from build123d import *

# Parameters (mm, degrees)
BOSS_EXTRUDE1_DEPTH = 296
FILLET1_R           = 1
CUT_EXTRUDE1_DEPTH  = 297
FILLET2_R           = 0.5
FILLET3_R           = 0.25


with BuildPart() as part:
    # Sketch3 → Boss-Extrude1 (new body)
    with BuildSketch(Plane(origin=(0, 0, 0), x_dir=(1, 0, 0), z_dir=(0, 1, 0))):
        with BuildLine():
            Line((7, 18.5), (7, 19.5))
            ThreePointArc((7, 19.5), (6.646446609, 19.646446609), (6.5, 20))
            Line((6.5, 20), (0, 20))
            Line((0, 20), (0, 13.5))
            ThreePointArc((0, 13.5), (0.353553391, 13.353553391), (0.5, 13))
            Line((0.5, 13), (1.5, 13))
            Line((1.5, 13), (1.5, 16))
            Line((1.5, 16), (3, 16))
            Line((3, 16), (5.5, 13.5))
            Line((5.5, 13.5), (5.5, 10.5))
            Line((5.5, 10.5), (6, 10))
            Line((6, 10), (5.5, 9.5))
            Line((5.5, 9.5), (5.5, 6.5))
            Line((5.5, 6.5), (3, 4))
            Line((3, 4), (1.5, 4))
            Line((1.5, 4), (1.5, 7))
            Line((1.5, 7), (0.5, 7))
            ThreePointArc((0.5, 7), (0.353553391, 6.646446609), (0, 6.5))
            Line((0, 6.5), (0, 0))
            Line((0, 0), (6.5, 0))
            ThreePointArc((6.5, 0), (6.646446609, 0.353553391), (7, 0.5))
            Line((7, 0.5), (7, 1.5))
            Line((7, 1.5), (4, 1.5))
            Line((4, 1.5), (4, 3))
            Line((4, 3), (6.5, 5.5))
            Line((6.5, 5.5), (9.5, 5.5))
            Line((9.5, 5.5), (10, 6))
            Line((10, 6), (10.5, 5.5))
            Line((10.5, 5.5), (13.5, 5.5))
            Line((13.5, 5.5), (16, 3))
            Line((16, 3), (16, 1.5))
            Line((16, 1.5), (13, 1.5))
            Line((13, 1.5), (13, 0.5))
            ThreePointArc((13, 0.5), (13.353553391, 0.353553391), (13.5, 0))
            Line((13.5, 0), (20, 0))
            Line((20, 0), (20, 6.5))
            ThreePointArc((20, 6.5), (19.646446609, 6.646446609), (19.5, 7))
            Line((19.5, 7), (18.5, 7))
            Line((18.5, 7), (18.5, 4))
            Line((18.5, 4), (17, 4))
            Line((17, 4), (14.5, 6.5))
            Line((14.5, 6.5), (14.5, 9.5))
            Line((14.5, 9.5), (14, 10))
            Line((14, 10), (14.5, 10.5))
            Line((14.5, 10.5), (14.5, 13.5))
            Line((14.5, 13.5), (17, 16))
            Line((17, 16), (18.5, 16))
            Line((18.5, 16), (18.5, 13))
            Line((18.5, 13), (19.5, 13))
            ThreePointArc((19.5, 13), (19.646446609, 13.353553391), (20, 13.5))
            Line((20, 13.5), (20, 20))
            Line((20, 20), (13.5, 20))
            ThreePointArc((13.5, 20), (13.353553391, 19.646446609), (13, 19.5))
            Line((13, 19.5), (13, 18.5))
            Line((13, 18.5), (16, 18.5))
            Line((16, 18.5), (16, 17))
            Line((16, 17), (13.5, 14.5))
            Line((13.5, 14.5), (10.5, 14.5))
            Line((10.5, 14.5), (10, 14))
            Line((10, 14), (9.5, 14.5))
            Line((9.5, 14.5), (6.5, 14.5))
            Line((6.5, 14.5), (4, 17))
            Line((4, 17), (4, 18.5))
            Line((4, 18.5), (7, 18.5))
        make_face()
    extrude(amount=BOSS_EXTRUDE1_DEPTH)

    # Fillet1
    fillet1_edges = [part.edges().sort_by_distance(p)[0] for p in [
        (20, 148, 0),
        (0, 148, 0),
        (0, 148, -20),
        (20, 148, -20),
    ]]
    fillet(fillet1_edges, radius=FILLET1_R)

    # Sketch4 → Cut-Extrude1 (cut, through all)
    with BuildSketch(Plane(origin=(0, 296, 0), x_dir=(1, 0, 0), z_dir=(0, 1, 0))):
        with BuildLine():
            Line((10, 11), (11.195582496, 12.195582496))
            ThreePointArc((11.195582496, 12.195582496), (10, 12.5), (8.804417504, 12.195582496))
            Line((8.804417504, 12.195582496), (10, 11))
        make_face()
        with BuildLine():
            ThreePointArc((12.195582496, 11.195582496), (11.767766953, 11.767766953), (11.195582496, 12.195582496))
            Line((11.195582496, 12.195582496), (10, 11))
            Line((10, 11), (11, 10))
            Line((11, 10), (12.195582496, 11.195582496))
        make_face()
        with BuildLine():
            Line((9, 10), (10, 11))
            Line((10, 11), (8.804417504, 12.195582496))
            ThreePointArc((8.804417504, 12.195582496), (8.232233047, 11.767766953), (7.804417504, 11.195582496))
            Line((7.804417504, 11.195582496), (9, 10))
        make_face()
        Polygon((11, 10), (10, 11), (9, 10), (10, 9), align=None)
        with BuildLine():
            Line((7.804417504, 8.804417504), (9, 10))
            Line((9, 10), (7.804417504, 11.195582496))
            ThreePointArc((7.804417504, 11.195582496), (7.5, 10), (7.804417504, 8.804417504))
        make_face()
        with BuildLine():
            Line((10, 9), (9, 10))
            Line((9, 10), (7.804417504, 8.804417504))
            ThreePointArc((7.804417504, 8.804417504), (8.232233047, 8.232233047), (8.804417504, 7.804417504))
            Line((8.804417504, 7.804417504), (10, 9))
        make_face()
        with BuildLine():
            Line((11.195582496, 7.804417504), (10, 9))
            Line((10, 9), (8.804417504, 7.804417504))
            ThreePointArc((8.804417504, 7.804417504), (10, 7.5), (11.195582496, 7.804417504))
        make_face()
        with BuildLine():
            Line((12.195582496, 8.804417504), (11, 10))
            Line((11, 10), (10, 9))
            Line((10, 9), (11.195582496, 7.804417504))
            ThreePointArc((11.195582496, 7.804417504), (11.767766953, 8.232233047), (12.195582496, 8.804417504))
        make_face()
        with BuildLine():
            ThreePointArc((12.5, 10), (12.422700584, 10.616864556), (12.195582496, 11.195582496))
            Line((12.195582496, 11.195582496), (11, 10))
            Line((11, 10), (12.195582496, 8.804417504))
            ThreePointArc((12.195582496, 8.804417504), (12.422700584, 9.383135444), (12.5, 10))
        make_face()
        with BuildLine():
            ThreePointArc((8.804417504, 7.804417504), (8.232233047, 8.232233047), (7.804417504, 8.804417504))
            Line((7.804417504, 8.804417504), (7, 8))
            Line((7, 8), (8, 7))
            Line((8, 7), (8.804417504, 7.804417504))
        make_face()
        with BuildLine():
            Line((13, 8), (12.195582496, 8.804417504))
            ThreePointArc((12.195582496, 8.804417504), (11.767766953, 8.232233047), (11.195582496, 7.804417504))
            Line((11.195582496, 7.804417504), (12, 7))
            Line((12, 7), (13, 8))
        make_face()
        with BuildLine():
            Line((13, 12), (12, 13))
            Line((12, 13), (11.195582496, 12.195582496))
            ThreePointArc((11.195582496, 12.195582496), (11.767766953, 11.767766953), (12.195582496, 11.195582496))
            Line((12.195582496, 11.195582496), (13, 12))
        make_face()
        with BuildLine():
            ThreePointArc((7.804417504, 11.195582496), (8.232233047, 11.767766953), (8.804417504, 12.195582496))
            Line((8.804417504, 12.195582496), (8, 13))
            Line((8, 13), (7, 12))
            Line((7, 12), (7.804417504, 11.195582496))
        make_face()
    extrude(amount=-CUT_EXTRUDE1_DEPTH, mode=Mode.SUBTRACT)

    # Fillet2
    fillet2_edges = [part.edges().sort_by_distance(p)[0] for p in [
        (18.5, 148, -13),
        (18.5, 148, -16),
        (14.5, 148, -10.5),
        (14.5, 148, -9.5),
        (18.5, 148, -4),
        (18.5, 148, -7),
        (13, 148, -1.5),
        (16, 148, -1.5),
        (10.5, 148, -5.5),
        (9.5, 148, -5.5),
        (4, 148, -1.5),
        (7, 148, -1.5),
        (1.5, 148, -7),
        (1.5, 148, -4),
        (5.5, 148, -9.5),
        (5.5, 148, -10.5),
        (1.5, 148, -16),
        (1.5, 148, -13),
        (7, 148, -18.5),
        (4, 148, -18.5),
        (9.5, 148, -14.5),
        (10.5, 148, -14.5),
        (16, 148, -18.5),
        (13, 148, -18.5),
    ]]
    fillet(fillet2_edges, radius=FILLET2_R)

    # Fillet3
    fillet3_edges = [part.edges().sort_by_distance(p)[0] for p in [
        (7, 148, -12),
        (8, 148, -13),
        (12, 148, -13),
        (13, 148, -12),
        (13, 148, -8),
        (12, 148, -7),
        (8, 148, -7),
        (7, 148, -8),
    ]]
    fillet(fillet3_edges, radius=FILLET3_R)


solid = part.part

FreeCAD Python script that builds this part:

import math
import FreeCAD as App
import Part
import Sketcher

V = App.Vector
Q = App.Units.Quantity


def edges_at(feature, points):
    """Names of the edges that pass closest to the given points."""
    edges = feature.Shape.Edges
    near = lambda p: min(range(len(edges)), key=lambda i: edges[i].distToShape(Part.Vertex(*p))[0])
    return sorted({f"Edge{near(p) + 1}" for p in points})

doc = App.newDocument("Part")
body = doc.addObject("PartDesign::Body", "Body")

# Sketch on XZ plane
sketch1 = body.newObject("Sketcher::SketchObject", "Sketch")
sketch1.AttachmentSupport = (doc.getObject("XZ_Plane"), [""])
sketch1.MapMode = "FlatFace"
sketch1.addGeometry([
    Part.LineSegment(V(7, -18.5, 0), V(7, -19.5, 0)),  # 0
    Part.ArcOfCircle(Part.Circle(V(7, -20, 0), V(0, 0, 1), 0.5), math.radians(90), math.radians(180)),  # 1
    Part.LineSegment(V(6.5, -20, 0), V(0, -20, 0)),  # 2
    Part.LineSegment(V(0, -20, 0), V(0, -13.5, 0)),  # 3
    Part.ArcOfCircle(Part.Circle(V(0, -13, 0), V(0, 0, 1), 0.5), math.radians(-90), math.radians(0)),  # 4
    Part.LineSegment(V(0.5, -13, 0), V(1.5, -13, 0)),  # 5
    Part.LineSegment(V(1.5, -13, 0), V(1.5, -16, 0)),  # 6
    Part.LineSegment(V(1.5, -16, 0), V(3, -16, 0)),  # 7
    Part.LineSegment(V(3, -16, 0), V(5.5, -13.5, 0)),  # 8
    Part.LineSegment(V(5.5, -13.5, 0), V(5.5, -10.5, 0)),  # 9
    Part.LineSegment(V(5.5, -10.5, 0), V(6, -10, 0)),  # 10
    Part.LineSegment(V(6, -10, 0), V(5.5, -9.5, 0)),  # 11
    Part.LineSegment(V(5.5, -9.5, 0), V(5.5, -6.5, 0)),  # 12
    Part.LineSegment(V(5.5, -6.5, 0), V(3, -4, 0)),  # 13
    Part.LineSegment(V(3, -4, 0), V(1.5, -4, 0)),  # 14
    Part.LineSegment(V(1.5, -4, 0), V(1.5, -7, 0)),  # 15
    Part.LineSegment(V(1.5, -7, 0), V(0.5, -7, 0)),  # 16
    Part.ArcOfCircle(Part.Circle(V(0, -7, 0), V(0, 0, 1), 0.5), math.radians(0), math.radians(90)),  # 17
    Part.LineSegment(V(0, -6.5, 0), V(0, 0, 0)),  # 18
    Part.LineSegment(V(0, 0, 0), V(6.5, 0, 0)),  # 19
    Part.ArcOfCircle(Part.Circle(V(7, 0, 0), V(0, 0, 1), 0.5), math.radians(180), math.radians(270)),  # 20
    Part.LineSegment(V(7, -0.5, 0), V(7, -1.5, 0)),  # 21
    Part.LineSegment(V(7, -1.5, 0), V(4, -1.5, 0)),  # 22
    Part.LineSegment(V(4, -1.5, 0), V(4, -3, 0)),  # 23
    Part.LineSegment(V(4, -3, 0), V(6.5, -5.5, 0)),  # 24
    Part.LineSegment(V(6.5, -5.5, 0), V(9.5, -5.5, 0)),  # 25
    Part.LineSegment(V(9.5, -5.5, 0), V(10, -6, 0)),  # 26
    Part.LineSegment(V(10, -6, 0), V(10.5, -5.5, 0)),  # 27
    Part.LineSegment(V(10.5, -5.5, 0), V(13.5, -5.5, 0)),  # 28
    Part.LineSegment(V(13.5, -5.5, 0), V(16, -3, 0)),  # 29
    Part.LineSegment(V(16, -3, 0), V(16, -1.5, 0)),  # 30
    Part.LineSegment(V(16, -1.5, 0), V(13, -1.5, 0)),  # 31
    Part.LineSegment(V(13, -1.5, 0), V(13, -0.5, 0)),  # 32
    Part.ArcOfCircle(Part.Circle(V(13, 0, 0), V(0, 0, 1), 0.5), math.radians(-90), math.radians(0)),  # 33
    Part.LineSegment(V(13.5, 0, 0), V(20, 0, 0)),  # 34
    Part.LineSegment(V(20, 0, 0), V(20, -6.5, 0)),  # 35
    Part.ArcOfCircle(Part.Circle(V(20, -7, 0), V(0, 0, 1), 0.5), math.radians(90), math.radians(180)),  # 36
    Part.LineSegment(V(19.5, -7, 0), V(18.5, -7, 0)),  # 37
    Part.LineSegment(V(18.5, -7, 0), V(18.5, -4, 0)),  # 38
    Part.LineSegment(V(18.5, -4, 0), V(17, -4, 0)),  # 39
    Part.LineSegment(V(17, -4, 0), V(14.5, -6.5, 0)),  # 40
    Part.LineSegment(V(14.5, -6.5, 0), V(14.5, -9.5, 0)),  # 41
    Part.LineSegment(V(14.5, -9.5, 0), V(14, -10, 0)),  # 42
    Part.LineSegment(V(14, -10, 0), V(14.5, -10.5, 0)),  # 43
    Part.LineSegment(V(14.5, -10.5, 0), V(14.5, -13.5, 0)),  # 44
    Part.LineSegment(V(14.5, -13.5, 0), V(17, -16, 0)),  # 45
    Part.LineSegment(V(17, -16, 0), V(18.5, -16, 0)),  # 46
    Part.LineSegment(V(18.5, -16, 0), V(18.5, -13, 0)),  # 47
    Part.LineSegment(V(18.5, -13, 0), V(19.5, -13, 0)),  # 48
    Part.ArcOfCircle(Part.Circle(V(20, -13, 0), V(0, 0, 1), 0.5), math.radians(180), math.radians(270)),  # 49
    Part.LineSegment(V(20, -13.5, 0), V(20, -20, 0)),  # 50
    Part.LineSegment(V(20, -20, 0), V(13.5, -20, 0)),  # 51
    Part.ArcOfCircle(Part.Circle(V(13, -20, 0), V(0, 0, 1), 0.5), math.radians(0), math.radians(90)),  # 52
    Part.LineSegment(V(13, -19.5, 0), V(13, -18.5, 0)),  # 53
    Part.LineSegment(V(13, -18.5, 0), V(16, -18.5, 0)),  # 54
    Part.LineSegment(V(16, -18.5, 0), V(16, -17, 0)),  # 55
    Part.LineSegment(V(16, -17, 0), V(13.5, -14.5, 0)),  # 56
    Part.LineSegment(V(13.5, -14.5, 0), V(10.5, -14.5, 0)),  # 57
    Part.LineSegment(V(10.5, -14.5, 0), V(10, -14, 0)),  # 58
    Part.LineSegment(V(10, -14, 0), V(9.5, -14.5, 0)),  # 59
    Part.LineSegment(V(9.5, -14.5, 0), V(6.5, -14.5, 0)),  # 60
    Part.LineSegment(V(6.5, -14.5, 0), V(4, -17, 0)),  # 61
    Part.LineSegment(V(4, -17, 0), V(4, -18.5, 0)),  # 62
    Part.LineSegment(V(4, -18.5, 0), V(7, -18.5, 0)),  # 63
], False)
sketch1.addConstraint([
    Sketcher.Constraint("Coincident", 0, 2, 1, 1),
    Sketcher.Constraint("Coincident", 1, 2, 2, 1),
    Sketcher.Constraint("Coincident", 2, 2, 3, 1),
    Sketcher.Constraint("Coincident", 3, 2, 4, 1),
    Sketcher.Constraint("Coincident", 4, 2, 5, 1),
    Sketcher.Constraint("Coincident", 5, 2, 6, 1),
    Sketcher.Constraint("Coincident", 6, 2, 7, 1),
    Sketcher.Constraint("Coincident", 7, 2, 8, 1),
    Sketcher.Constraint("Coincident", 8, 2, 9, 1),
    Sketcher.Constraint("Coincident", 9, 2, 10, 1),
    Sketcher.Constraint("Coincident", 10, 2, 11, 1),
    Sketcher.Constraint("Coincident", 11, 2, 12, 1),
    Sketcher.Constraint("Coincident", 12, 2, 13, 1),
    Sketcher.Constraint("Coincident", 13, 2, 14, 1),
    Sketcher.Constraint("Coincident", 14, 2, 15, 1),
    Sketcher.Constraint("Coincident", 15, 2, 16, 1),
    Sketcher.Constraint("Coincident", 16, 2, 17, 1),
    Sketcher.Constraint("Coincident", 17, 2, 18, 1),
    Sketcher.Constraint("Coincident", 18, 2, 19, 1),
    Sketcher.Constraint("Coincident", 19, 2, 20, 1),
    Sketcher.Constraint("Coincident", 20, 2, 21, 1),
    Sketcher.Constraint("Coincident", 21, 2, 22, 1),
    Sketcher.Constraint("Coincident", 22, 2, 23, 1),
    Sketcher.Constraint("Coincident", 23, 2, 24, 1),
    Sketcher.Constraint("Coincident", 24, 2, 25, 1),
    Sketcher.Constraint("Coincident", 25, 2, 26, 1),
    Sketcher.Constraint("Coincident", 26, 2, 27, 1),
    Sketcher.Constraint("Coincident", 27, 2, 28, 1),
    Sketcher.Constraint("Coincident", 28, 2, 29, 1),
    Sketcher.Constraint("Coincident", 29, 2, 30, 1),
    Sketcher.Constraint("Coincident", 30, 2, 31, 1),
    Sketcher.Constraint("Coincident", 31, 2, 32, 1),
    Sketcher.Constraint("Coincident", 32, 2, 33, 1),
    Sketcher.Constraint("Coincident", 33, 2, 34, 1),
    Sketcher.Constraint("Coincident", 34, 2, 35, 1),
    Sketcher.Constraint("Coincident", 35, 2, 36, 1),
    Sketcher.Constraint("Coincident", 36, 2, 37, 1),
    Sketcher.Constraint("Coincident", 37, 2, 38, 1),
    Sketcher.Constraint("Coincident", 38, 2, 39, 1),
    Sketcher.Constraint("Coincident", 39, 2, 40, 1),
    Sketcher.Constraint("Coincident", 40, 2, 41, 1),
    Sketcher.Constraint("Coincident", 41, 2, 42, 1),
    Sketcher.Constraint("Coincident", 42, 2, 43, 1),
    Sketcher.Constraint("Coincident", 43, 2, 44, 1),
    Sketcher.Constraint("Coincident", 44, 2, 45, 1),
    Sketcher.Constraint("Coincident", 45, 2, 46, 1),
    Sketcher.Constraint("Coincident", 46, 2, 47, 1),
    Sketcher.Constraint("Coincident", 47, 2, 48, 1),
    Sketcher.Constraint("Coincident", 48, 2, 49, 1),
    Sketcher.Constraint("Coincident", 49, 2, 50, 1),
    Sketcher.Constraint("Coincident", 50, 2, 51, 1),
    Sketcher.Constraint("Coincident", 51, 2, 52, 1),
    Sketcher.Constraint("Coincident", 52, 2, 53, 1),
    Sketcher.Constraint("Coincident", 53, 2, 54, 1),
    Sketcher.Constraint("Coincident", 54, 2, 55, 1),
    Sketcher.Constraint("Coincident", 55, 2, 56, 1),
    Sketcher.Constraint("Coincident", 56, 2, 57, 1),
    Sketcher.Constraint("Coincident", 57, 2, 58, 1),
    Sketcher.Constraint("Coincident", 58, 2, 59, 1),
    Sketcher.Constraint("Coincident", 59, 2, 60, 1),
    Sketcher.Constraint("Coincident", 60, 2, 61, 1),
    Sketcher.Constraint("Coincident", 61, 2, 62, 1),
    Sketcher.Constraint("Coincident", 62, 2, 63, 1),
    Sketcher.Constraint("Coincident", 63, 2, 0, 1),
    Sketcher.Constraint("Vertical", 0),
    Sketcher.Constraint("Horizontal", 2),
    Sketcher.Constraint("Vertical", 3),
    Sketcher.Constraint("Horizontal", 5),
    Sketcher.Constraint("Vertical", 6),
    Sketcher.Constraint("Horizontal", 7),
    Sketcher.Constraint("Vertical", 9),
    Sketcher.Constraint("Vertical", 12),
    Sketcher.Constraint("Horizontal", 14),
    Sketcher.Constraint("Vertical", 15),
    Sketcher.Constraint("Horizontal", 16),
    Sketcher.Constraint("Vertical", 18),
    Sketcher.Constraint("Horizontal", 19),
    Sketcher.Constraint("Vertical", 21),
    Sketcher.Constraint("Horizontal", 22),
    Sketcher.Constraint("Vertical", 23),
    Sketcher.Constraint("Horizontal", 25),
    Sketcher.Constraint("Horizontal", 28),
    Sketcher.Constraint("Vertical", 30),
    Sketcher.Constraint("Horizontal", 31),
    Sketcher.Constraint("Vertical", 32),
    Sketcher.Constraint("Horizontal", 34),
    Sketcher.Constraint("Vertical", 35),
    Sketcher.Constraint("Horizontal", 37),
    Sketcher.Constraint("Vertical", 38),
    Sketcher.Constraint("Horizontal", 39),
    Sketcher.Constraint("Vertical", 41),
    Sketcher.Constraint("Vertical", 44),
    Sketcher.Constraint("Horizontal", 46),
    Sketcher.Constraint("Vertical", 47),
    Sketcher.Constraint("Horizontal", 48),
    Sketcher.Constraint("Vertical", 50),
    Sketcher.Constraint("Horizontal", 51),
    Sketcher.Constraint("Vertical", 53),
    Sketcher.Constraint("Horizontal", 54),
    Sketcher.Constraint("Vertical", 55),
    Sketcher.Constraint("Horizontal", 57),
    Sketcher.Constraint("Horizontal", 60),
    Sketcher.Constraint("Vertical", 62),
    Sketcher.Constraint("Horizontal", 63),
    Sketcher.Constraint("Coincident", 18, 2, -1, 1),
    Sketcher.Constraint("Equal", 1, 4),
    Sketcher.Constraint("Equal", 4, 17),
    Sketcher.Constraint("Equal", 17, 20),
    Sketcher.Constraint("Equal", 20, 33),
    Sketcher.Constraint("Equal", 33, 36),
    Sketcher.Constraint("Equal", 36, 49),
    Sketcher.Constraint("Equal", 49, 52),
    Sketcher.Constraint("PointOnObject", 4, 3, -2),
    Sketcher.Constraint("PointOnObject", 17, 3, -2),
    Sketcher.Constraint("PointOnObject", 20, 3, -1),
    Sketcher.Constraint("PointOnObject", 33, 3, -1),
    Sketcher.Constraint("PointOnObject", 2, 2, -2),
    Sketcher.Constraint("PointOnObject", 33, 2, -1),
    Sketcher.Constraint("Parallel", 8, 10),
    Sketcher.Constraint("Perpendicular", 10, 11),
    Sketcher.Constraint("Parallel", 11, 13),
    Sketcher.Constraint("Parallel", 13, 24),
    Sketcher.Constraint("Parallel", 24, 26),
    Sketcher.Constraint("Perpendicular", 26, 27),
    Sketcher.Constraint("Parallel", 27, 29),
    Sketcher.Constraint("Parallel", 29, 40),
    Sketcher.Constraint("Parallel", 40, 42),
    Sketcher.Constraint("Perpendicular", 42, 43),
    Sketcher.Constraint("Parallel", 43, 45),
    Sketcher.Constraint("Parallel", 45, 56),
    Sketcher.Constraint("Parallel", 56, 58),
    Sketcher.Constraint("Perpendicular", 58, 59),
    Sketcher.Constraint("Parallel", 59, 61),
    Sketcher.Constraint("Horizontal", 17, 3, 36, 3),
    Sketcher.Constraint("Horizontal", 4, 3, 49, 3),
    Sketcher.Constraint("Horizontal", 1, 3, 52, 3),
    Sketcher.Constraint("Horizontal", 52, 3, 1, 2),
    Sketcher.Constraint("Horizontal", 49, 3, 4, 2),
    Sketcher.Constraint("Horizontal", 3, 2, 8, 2),
    Sketcher.Constraint("Horizontal", 36, 3, 15, 2),
    Sketcher.Constraint("Horizontal", 12, 2, 17, 2),
    Sketcher.Constraint("Horizontal", 25, 2, 27, 2),
    Sketcher.Constraint("Horizontal", 23, 2, 29, 2),
    Sketcher.Constraint("Horizontal", 22, 2, 30, 2),
    Sketcher.Constraint("Horizontal", 16, 2, 36, 2),
    Sketcher.Constraint("Horizontal", 14, 2, 38, 2),
    Sketcher.Constraint("Horizontal", 35, 2, 40, 2),
    Sketcher.Constraint("Horizontal", 11, 2, 41, 2),
    Sketcher.Constraint("Horizontal", 10, 2, 42, 2),
    Sketcher.Constraint("Horizontal", 9, 2, 43, 2),
    Sketcher.Constraint("Horizontal", 8, 2, 44, 2),
    Sketcher.Constraint("Horizontal", 7, 2, 45, 2),
    Sketcher.Constraint("Horizontal", 5, 2, 47, 2),
    Sketcher.Constraint("Horizontal", 2, 2, 50, 2),
    Sketcher.Constraint("Horizontal", 57, 2, 59, 2),
    Sketcher.Constraint("Horizontal", 55, 2, 61, 2),
    Sketcher.Constraint("Horizontal", 54, 2, 62, 2),
    Sketcher.Constraint("Vertical", 1, 3, 20, 3),
    Sketcher.Constraint("Vertical", 36, 3, 49, 3),
    Sketcher.Constraint("Vertical", 33, 3, 52, 3),
    Sketcher.Constraint("Vertical", 20, 3, 0, 2),
    Sketcher.Constraint("Vertical", 9, 2, 11, 2),
    Sketcher.Constraint("Vertical", 7, 2, 13, 2),
    Sketcher.Constraint("Vertical", 6, 2, 14, 2),
    Sketcher.Constraint("Vertical", 0, 2, 20, 2),
    Sketcher.Constraint("Vertical", 19, 2, 24, 2),
    Sketcher.Constraint("Vertical", 52, 3, 31, 2),
    Sketcher.Constraint("Vertical", 28, 2, 33, 2),
    Sketcher.Constraint("Vertical", 49, 3, 34, 2),
    Sketcher.Constraint("Vertical", 41, 2, 43, 2),
    Sketcher.Constraint("Vertical", 38, 2, 46, 2),
    Sketcher.Constraint("Vertical", 35, 2, 49, 2),
    Sketcher.Constraint("Vertical", 32, 2, 52, 2),
    Sketcher.Constraint("Vertical", 30, 2, 54, 2),
    Sketcher.Constraint("Vertical", 51, 2, 56, 2),
    Sketcher.Constraint("Vertical", 27, 2, 57, 2),
    Sketcher.Constraint("Vertical", 26, 2, 58, 2),
    Sketcher.Constraint("Vertical", 24, 2, 60, 2),
    Sketcher.Constraint("Equal", 22, 25),
    Sketcher.Constraint("Equal", 25, 28),
    Sketcher.Constraint("Equal", 19, 34),
    Sketcher.Constraint("Equal", 16, 37),
    Sketcher.Constraint("Equal", 14, 39),
    Sketcher.Constraint("Equal", 48, 0),
    Sketcher.Constraint("Equal", 51, 3),
    Sketcher.Constraint("Equal", 63, 6),
    Sketcher.Constraint("Equal", 6, 9),
    Sketcher.Constraint("Equal", 9, 12),
    Sketcher.Constraint("Equal", 3, 18),
    Sketcher.Constraint("Equal", 0, 21),
    Sketcher.Constraint("Equal", 46, 23),
    Sketcher.Constraint("Equal", 30, 55),
    Sketcher.Constraint("Equal", 11, 26),
    Sketcher.Constraint("Radius", 1, Q("0.5 mm")),
    Sketcher.Constraint("DistanceX", 5, 1, 5, 2, Q("1 mm")),
    Sketcher.Constraint("DistanceX", 22, 2, 22, 1, Q("3 mm")),
    Sketcher.Constraint("DistanceX", 2, 2, 2, 1, Q("6.5 mm")),
    Sketcher.Constraint("DistanceX", 7, 1, 7, 2, Q("1.5 mm")),
    Sketcher.Constraint("DistanceY", 1, 3, -1, 1, Q("20 mm")),
])
pad1 = body.newObject("PartDesign::Pad", "Pad")
pad1.Profile = sketch1
pad1.Length = 296
pad1.Reversed = True
doc.recompute()

fillet = body.newObject("PartDesign::Fillet", "Fillet")
fillet.Base = (pad1, edges_at(pad1, [
    (20, 148, 0),
    (0, 148, 0),
    (0, 148, -20),
    (20, 148, -20),
]))
fillet.Radius = 1

# Sketch on XZ plane
sketch2 = body.newObject("Sketcher::SketchObject", "Sketch001")
sketch2.AttachmentSupport = (doc.getObject("XZ_Plane"), [""])
sketch2.MapMode = "FlatFace"
sketch2.AttachmentOffset = App.Placement(V(0, 0, -296), App.Rotation())
sketch2.addGeometry([
    Part.ArcOfCircle(Part.Circle(V(10, -10, 0), V(0, 0, 1), 2.5), math.radians(-119), math.radians(-61)),  # 0
    Part.LineSegment(V(8.8, -12.2, 0), V(8, -13, 0)),  # 1
    Part.LineSegment(V(8, -13, 0), V(7, -12, 0)),  # 2
    Part.LineSegment(V(7, -12, 0), V(7.8, -11.2, 0)),  # 3
    Part.ArcOfCircle(Part.Circle(V(10, -10, 0), V(0, 0, 1), 2.5), math.radians(151), math.radians(209)),  # 4
    Part.LineSegment(V(7.8, -8.8, 0), V(7, -8, 0)),  # 5
    Part.LineSegment(V(7, -8, 0), V(8, -7, 0)),  # 6
    Part.LineSegment(V(8, -7, 0), V(8.8, -7.8, 0)),  # 7
    Part.ArcOfCircle(Part.Circle(V(10, -10, 0), V(0, 0, 1), 2.5), math.radians(61), math.radians(119)),  # 8
    Part.LineSegment(V(11.2, -7.8, 0), V(12, -7, 0)),  # 9
    Part.LineSegment(V(12, -7, 0), V(13, -8, 0)),  # 10
    Part.LineSegment(V(13, -8, 0), V(12.2, -8.8, 0)),  # 11
    Part.ArcOfCircle(Part.Circle(V(10, -10, 0), V(0, 0, 1), 2.5), math.radians(0), math.radians(29)),  # 12
    Part.ArcOfCircle(Part.Circle(V(10, -10, 0), V(0, 0, 1), 2.5), math.radians(-29), math.radians(0)),  # 13
    Part.LineSegment(V(12.2, -11.2, 0), V(13, -12, 0)),  # 14
    Part.LineSegment(V(13, -12, 0), V(12, -13, 0)),  # 15
    Part.LineSegment(V(12, -13, 0), V(11.2, -12.2, 0)),  # 16
], False)
sketch2.addConstraint([
    Sketcher.Constraint("Coincident", 0, 1, 1, 1),
    Sketcher.Constraint("Coincident", 1, 2, 2, 1),
    Sketcher.Constraint("Coincident", 2, 2, 3, 1),
    Sketcher.Constraint("Coincident", 3, 2, 4, 2),
    Sketcher.Constraint("Coincident", 4, 1, 5, 1),
    Sketcher.Constraint("Coincident", 5, 2, 6, 1),
    Sketcher.Constraint("Coincident", 6, 2, 7, 1),
    Sketcher.Constraint("Coincident", 7, 2, 8, 2),
    Sketcher.Constraint("Coincident", 8, 1, 9, 1),
    Sketcher.Constraint("Coincident", 9, 2, 10, 1),
    Sketcher.Constraint("Coincident", 10, 2, 11, 1),
    Sketcher.Constraint("Coincident", 11, 2, 12, 2),
    Sketcher.Constraint("Tangent", 12, 1, 13, 2),
    Sketcher.Constraint("Coincident", 13, 1, 14, 1),
    Sketcher.Constraint("Coincident", 14, 2, 15, 1),
    Sketcher.Constraint("Coincident", 15, 2, 16, 1),
    Sketcher.Constraint("Coincident", 16, 2, 0, 2),
    Sketcher.Constraint("Coincident", 4, 3, 0, 3),
    Sketcher.Constraint("Coincident", 8, 3, 0, 3),
    Sketcher.Constraint("Coincident", 12, 3, 0, 3),
    Sketcher.Constraint("Equal", 0, 4),
    Sketcher.Constraint("Equal", 4, 8),
    Sketcher.Constraint("Equal", 8, 12),
    Sketcher.Constraint("Equal", 12, 13),
    Sketcher.Constraint("Perpendicular", 1, 2),
    Sketcher.Constraint("Perpendicular", 2, 3),
    Sketcher.Constraint("Perpendicular", 3, 5),
    Sketcher.Constraint("Perpendicular", 5, 6),
    Sketcher.Constraint("Perpendicular", 6, 7),
    Sketcher.Constraint("Perpendicular", 7, 9),
    Sketcher.Constraint("Perpendicular", 9, 10),
    Sketcher.Constraint("Perpendicular", 10, 11),
    Sketcher.Constraint("Perpendicular", 11, 14),
    Sketcher.Constraint("Perpendicular", 14, 15),
    Sketcher.Constraint("Perpendicular", 15, 16),
    Sketcher.Constraint("Horizontal", 7, 2, 8, 1),
    Sketcher.Constraint("Horizontal", 6, 2, 9, 2),
    Sketcher.Constraint("Horizontal", 5, 2, 10, 2),
    Sketcher.Constraint("Horizontal", 4, 1, 11, 2),
    Sketcher.Constraint("Horizontal", 13, 3, 12, 1),
    Sketcher.Constraint("Horizontal", 3, 2, 13, 1),
    Sketcher.Constraint("Horizontal", 2, 2, 14, 2),
    Sketcher.Constraint("Horizontal", 1, 2, 15, 2),
    Sketcher.Constraint("Vertical", 3, 2, 4, 1),
    Sketcher.Constraint("Vertical", 2, 2, 5, 2),
    Sketcher.Constraint("Vertical", 1, 2, 6, 2),
    Sketcher.Constraint("Equal", 1, 3),
    Sketcher.Constraint("Radius", 0, Q("2.5 mm")),
    Sketcher.Constraint("DistanceX", -1, 1, 0, 3, Q("10 mm")),
    Sketcher.Constraint("DistanceY", 0, 3, -1, 1, Q("10 mm")),
    Sketcher.Constraint("DistanceX", -1, 1, 1, 2, Q("8 mm")),
    Sketcher.Constraint("DistanceY", 1, 2, -1, 1, Q("13 mm")),
])
pocket1 = body.newObject("PartDesign::Pocket", "Pocket")
pocket1.Profile = sketch2
pocket1.Type = "ThroughAll"
pocket1.Reversed = True
doc.recompute()

fillet2 = body.newObject("PartDesign::Fillet", "Fillet001")
fillet2.Base = (pocket1, edges_at(pocket1, [
    (18.5, 148, -13),
    (18.5, 148, -16),
    (14.5, 148, -10.5),
    (14.5, 148, -9.5),
    (18.5, 148, -4),
    (18.5, 148, -7),
    (13, 148, -1.5),
    (16, 148, -1.5),
    (10.5, 148, -5.5),
    (9.5, 148, -5.5),
    (4, 148, -1.5),
    (7, 148, -1.5),
    (1.5, 148, -7),
    (1.5, 148, -4),
    (5.5, 148, -9.5),
    (5.5, 148, -10.5),
    (1.5, 148, -16),
    (1.5, 148, -13),
    (7, 148, -18.5),
    (4, 148, -18.5),
    (9.5, 148, -14.5),
    (10.5, 148, -14.5),
    (16, 148, -18.5),
    (13, 148, -18.5),
]))
fillet2.Radius = 0.5
doc.recompute()

fillet3 = body.newObject("PartDesign::Fillet", "Fillet002")
fillet3.Base = (fillet2, edges_at(fillet2, [
    (7, 148, -12),
    (8, 148, -13),
    (12, 148, -13),
    (13, 148, -12),
    (13, 148, -8),
    (12, 148, -7),
    (8, 148, -7),
    (7, 148, -8),
]))
fillet3.Radius = 0.25

doc.recompute()
